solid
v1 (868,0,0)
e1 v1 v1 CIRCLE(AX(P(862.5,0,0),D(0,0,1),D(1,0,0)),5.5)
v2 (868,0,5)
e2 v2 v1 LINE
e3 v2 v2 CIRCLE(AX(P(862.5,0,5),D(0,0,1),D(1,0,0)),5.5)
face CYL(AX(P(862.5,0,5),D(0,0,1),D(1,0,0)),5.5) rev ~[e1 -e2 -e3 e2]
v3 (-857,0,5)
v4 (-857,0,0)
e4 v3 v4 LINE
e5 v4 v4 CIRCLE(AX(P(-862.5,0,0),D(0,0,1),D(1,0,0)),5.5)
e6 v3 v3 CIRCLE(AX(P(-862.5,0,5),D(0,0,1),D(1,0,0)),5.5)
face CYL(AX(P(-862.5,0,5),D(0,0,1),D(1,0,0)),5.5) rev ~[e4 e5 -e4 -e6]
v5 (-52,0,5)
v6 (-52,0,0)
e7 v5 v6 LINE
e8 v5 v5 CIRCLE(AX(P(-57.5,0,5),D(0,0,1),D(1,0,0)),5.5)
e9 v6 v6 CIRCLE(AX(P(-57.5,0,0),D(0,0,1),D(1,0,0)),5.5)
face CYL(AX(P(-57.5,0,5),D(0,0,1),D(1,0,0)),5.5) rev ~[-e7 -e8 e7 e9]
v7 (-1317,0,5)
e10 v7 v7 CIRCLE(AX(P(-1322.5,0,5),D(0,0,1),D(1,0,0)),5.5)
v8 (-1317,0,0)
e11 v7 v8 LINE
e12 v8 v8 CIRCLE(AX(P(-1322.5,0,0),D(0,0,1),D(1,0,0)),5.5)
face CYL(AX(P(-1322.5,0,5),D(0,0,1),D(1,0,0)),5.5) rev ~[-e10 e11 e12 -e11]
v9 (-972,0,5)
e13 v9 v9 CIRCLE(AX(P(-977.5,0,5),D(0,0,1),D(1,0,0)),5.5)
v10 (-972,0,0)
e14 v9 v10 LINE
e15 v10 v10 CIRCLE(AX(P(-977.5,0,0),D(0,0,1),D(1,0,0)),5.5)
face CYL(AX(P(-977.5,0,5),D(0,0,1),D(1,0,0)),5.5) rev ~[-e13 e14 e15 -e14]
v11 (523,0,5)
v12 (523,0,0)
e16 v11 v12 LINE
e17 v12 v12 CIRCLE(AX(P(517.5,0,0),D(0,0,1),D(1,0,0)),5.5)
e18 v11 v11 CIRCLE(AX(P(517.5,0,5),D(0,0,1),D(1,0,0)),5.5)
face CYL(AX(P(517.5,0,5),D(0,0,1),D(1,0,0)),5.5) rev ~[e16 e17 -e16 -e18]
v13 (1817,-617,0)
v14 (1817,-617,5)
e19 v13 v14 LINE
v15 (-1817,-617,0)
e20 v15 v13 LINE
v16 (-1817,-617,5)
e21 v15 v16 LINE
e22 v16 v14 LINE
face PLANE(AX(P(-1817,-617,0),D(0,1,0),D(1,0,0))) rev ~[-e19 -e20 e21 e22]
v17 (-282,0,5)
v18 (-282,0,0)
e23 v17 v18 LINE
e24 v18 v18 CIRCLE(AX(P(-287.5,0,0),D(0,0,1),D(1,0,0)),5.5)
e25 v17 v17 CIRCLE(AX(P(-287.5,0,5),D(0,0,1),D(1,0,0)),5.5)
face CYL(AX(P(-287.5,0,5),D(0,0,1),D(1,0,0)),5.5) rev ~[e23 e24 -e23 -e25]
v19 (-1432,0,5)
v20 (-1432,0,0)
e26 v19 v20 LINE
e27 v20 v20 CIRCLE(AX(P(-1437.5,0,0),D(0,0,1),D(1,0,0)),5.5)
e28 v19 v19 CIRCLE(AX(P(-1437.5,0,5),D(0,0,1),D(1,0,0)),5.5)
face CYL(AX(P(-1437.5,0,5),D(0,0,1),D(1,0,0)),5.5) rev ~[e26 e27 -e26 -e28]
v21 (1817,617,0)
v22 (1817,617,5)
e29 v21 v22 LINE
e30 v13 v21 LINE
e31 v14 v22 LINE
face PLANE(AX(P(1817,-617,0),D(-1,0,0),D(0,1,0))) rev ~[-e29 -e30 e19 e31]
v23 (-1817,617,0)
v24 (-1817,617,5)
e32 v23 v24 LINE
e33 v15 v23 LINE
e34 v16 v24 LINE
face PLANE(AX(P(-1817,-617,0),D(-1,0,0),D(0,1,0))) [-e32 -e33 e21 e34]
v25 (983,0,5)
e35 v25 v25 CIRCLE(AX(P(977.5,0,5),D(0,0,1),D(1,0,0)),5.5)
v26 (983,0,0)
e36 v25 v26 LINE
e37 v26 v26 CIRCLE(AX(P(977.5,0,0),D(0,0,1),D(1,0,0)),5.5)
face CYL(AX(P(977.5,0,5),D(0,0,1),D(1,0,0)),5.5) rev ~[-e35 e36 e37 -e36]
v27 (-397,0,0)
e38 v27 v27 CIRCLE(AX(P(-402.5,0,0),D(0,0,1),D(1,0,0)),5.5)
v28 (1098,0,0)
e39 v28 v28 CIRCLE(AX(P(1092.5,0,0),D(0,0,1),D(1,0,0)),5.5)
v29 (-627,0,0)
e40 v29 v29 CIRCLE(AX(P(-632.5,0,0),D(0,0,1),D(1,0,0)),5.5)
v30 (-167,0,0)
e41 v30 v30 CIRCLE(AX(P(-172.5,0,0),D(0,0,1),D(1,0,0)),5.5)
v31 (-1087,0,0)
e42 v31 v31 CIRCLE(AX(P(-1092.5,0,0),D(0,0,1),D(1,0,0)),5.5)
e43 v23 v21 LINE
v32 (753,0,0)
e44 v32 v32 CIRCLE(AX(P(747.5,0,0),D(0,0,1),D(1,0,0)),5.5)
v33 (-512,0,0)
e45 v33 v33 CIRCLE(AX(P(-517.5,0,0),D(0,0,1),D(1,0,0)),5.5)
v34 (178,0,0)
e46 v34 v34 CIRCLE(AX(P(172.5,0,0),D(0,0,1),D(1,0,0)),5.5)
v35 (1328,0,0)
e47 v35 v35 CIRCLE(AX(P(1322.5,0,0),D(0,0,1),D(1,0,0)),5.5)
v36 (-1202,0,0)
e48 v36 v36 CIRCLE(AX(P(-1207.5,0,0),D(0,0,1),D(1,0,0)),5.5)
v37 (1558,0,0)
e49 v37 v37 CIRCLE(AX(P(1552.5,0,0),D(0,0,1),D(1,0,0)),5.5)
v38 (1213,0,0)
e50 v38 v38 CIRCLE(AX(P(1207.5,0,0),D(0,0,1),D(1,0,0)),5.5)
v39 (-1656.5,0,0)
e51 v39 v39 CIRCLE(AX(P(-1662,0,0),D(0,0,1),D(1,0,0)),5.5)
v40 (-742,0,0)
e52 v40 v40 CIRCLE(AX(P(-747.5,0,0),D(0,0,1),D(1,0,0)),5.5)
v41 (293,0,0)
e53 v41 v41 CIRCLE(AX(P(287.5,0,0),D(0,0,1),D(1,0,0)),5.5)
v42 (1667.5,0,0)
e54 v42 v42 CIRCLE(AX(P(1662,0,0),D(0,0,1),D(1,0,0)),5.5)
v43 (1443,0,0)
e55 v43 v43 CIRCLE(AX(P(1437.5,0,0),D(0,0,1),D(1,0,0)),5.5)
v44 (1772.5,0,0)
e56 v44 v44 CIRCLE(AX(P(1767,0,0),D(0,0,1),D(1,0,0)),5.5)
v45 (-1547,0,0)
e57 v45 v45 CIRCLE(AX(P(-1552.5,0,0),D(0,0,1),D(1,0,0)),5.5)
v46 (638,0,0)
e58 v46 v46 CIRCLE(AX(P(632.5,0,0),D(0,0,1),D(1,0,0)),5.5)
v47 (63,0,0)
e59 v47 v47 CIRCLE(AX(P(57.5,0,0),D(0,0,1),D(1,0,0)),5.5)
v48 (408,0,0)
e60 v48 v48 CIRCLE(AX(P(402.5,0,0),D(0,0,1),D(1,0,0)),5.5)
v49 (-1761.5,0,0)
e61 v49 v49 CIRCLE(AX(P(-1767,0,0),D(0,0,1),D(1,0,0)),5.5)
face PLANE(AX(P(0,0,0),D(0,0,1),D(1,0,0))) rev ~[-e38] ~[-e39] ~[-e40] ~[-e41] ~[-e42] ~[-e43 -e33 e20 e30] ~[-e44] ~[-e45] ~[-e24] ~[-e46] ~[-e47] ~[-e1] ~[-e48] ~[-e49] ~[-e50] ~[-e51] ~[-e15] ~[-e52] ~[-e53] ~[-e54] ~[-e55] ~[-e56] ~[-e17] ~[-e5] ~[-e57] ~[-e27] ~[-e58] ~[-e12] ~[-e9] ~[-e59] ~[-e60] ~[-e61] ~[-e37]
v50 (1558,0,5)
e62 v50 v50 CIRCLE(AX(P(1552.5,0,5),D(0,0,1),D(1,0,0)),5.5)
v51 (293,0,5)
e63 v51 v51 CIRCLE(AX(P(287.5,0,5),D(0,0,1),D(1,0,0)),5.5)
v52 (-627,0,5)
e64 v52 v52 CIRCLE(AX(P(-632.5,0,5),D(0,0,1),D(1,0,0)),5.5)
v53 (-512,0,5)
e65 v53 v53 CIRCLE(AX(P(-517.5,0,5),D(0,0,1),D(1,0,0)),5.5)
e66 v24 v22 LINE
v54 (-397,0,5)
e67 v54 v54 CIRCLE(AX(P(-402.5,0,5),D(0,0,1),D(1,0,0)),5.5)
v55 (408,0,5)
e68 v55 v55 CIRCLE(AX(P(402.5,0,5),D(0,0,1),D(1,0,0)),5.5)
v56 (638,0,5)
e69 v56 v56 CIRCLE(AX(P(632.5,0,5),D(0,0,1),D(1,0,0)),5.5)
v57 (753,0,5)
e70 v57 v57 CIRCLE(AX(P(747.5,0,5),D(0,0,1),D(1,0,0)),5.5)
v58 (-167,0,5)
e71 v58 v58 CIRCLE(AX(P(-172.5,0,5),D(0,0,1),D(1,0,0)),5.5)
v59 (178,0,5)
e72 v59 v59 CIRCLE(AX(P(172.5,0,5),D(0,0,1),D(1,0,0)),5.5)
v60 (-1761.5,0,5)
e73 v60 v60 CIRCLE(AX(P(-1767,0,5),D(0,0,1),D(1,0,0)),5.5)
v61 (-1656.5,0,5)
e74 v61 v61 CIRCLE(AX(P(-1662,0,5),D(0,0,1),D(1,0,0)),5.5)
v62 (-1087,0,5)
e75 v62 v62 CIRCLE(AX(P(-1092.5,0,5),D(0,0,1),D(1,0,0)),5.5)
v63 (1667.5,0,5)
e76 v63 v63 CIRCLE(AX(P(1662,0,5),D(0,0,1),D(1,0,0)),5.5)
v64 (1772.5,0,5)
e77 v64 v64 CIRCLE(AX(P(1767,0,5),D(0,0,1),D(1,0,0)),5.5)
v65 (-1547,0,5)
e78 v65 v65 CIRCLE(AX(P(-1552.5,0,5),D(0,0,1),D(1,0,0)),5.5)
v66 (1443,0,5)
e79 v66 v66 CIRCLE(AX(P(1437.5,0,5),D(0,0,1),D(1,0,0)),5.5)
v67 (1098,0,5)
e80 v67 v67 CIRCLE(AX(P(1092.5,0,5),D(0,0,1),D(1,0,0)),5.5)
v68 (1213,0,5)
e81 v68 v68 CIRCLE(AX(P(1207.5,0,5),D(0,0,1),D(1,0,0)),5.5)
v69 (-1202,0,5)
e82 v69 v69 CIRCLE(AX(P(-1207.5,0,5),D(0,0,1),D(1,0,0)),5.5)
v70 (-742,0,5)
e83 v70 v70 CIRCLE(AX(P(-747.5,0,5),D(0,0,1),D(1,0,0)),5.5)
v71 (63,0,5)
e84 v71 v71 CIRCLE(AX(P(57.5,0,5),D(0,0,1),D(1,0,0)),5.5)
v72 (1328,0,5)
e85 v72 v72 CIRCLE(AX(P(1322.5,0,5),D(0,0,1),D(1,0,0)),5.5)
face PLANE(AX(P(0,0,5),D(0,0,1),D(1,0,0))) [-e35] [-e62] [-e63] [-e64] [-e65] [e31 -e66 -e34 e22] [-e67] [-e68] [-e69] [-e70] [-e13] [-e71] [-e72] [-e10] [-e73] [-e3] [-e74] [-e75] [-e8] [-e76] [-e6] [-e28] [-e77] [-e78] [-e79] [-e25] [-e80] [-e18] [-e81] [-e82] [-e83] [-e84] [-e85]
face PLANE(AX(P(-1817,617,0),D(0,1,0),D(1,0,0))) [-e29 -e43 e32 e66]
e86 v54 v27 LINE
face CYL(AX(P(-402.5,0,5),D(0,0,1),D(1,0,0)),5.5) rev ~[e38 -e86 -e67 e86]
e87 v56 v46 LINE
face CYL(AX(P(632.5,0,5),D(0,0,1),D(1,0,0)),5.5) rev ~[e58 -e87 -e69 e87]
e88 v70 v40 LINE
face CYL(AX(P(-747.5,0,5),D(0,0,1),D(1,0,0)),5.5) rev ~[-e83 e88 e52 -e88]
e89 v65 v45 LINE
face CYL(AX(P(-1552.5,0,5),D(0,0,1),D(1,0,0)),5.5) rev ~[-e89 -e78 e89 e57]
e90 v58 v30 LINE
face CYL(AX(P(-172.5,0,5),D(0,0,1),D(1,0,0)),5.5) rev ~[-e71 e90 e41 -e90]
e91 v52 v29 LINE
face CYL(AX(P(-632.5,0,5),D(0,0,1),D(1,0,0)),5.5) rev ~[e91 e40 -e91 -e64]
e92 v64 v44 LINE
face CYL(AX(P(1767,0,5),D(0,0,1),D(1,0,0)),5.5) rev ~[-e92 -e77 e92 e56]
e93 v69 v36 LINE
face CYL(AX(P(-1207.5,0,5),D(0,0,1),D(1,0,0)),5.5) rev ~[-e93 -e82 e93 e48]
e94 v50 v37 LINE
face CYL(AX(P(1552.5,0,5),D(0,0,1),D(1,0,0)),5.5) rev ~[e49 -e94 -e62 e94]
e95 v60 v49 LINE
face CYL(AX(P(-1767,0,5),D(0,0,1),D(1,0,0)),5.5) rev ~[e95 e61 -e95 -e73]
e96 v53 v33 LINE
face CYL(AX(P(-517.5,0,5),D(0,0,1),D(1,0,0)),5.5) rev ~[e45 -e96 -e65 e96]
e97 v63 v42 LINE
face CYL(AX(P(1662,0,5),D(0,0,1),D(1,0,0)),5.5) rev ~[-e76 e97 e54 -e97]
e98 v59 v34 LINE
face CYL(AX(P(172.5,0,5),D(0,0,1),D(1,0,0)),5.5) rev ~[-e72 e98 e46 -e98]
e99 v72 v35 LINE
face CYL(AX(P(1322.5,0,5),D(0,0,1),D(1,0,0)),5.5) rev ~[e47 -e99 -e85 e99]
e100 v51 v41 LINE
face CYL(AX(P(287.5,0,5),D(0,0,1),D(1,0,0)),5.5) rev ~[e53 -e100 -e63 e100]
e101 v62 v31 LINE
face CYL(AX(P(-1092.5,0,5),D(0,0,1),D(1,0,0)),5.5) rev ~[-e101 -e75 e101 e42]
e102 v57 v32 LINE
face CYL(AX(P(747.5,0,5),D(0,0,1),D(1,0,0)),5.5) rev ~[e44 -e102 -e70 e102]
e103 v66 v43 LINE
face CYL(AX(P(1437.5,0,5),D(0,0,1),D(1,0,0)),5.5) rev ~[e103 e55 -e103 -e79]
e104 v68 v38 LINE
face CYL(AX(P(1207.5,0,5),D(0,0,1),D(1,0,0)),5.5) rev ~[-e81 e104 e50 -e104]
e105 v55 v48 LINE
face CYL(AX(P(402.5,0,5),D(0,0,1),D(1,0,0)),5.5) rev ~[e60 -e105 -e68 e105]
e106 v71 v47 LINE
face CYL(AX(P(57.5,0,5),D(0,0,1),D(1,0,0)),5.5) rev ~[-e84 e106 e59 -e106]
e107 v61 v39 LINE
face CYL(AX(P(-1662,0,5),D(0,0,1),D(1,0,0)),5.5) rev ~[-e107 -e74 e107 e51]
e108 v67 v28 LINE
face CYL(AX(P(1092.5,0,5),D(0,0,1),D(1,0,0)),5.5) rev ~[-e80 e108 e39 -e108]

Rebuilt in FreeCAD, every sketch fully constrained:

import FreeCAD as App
import Part
import Sketcher

V = App.Vector
Q = App.Units.Quantity


def add_polygon(sketch, points):
    """Adds a closed chain of lines whose ends are joined by coincident constraints."""
    first, n = sketch.GeometryCount, len(points)
    for a, b in zip(points, points[1:] + points[:1]):
        sketch.addGeometry(Part.LineSegment(App.Vector(*a, 0), App.Vector(*b, 0)), False)
    for i in range(n):
        sketch.addConstraint(Sketcher.Constraint("Coincident", first + i, 2, first + (i + 1) % n, 1))

doc = App.newDocument("Part")
body = doc.addObject("PartDesign::Body", "Body")

sketch1 = body.newObject("Sketcher::SketchObject", "Sketch")
sketch1.AttachmentSupport = (doc.getObject("XY_Plane"), [""])
sketch1.MapMode = "FlatFace"
add_polygon(sketch1, [(-1817, 617), (-1817, -617), (1817, -617), (1817, 617)])
sketch1.addConstraint(Sketcher.Constraint("Vertical", 0))
sketch1.addConstraint(Sketcher.Constraint("Horizontal", 1))
sketch1.addConstraint(Sketcher.Constraint("Vertical", 2))
sketch1.addConstraint(Sketcher.Constraint("Horizontal", 3))
sketch1.addConstraint(Sketcher.Constraint("Symmetric", 0, 2, 2, 2, -1, 1))
sketch1.addConstraint(Sketcher.Constraint("DistanceX", 1, 1, 1, 2, Q("3634 mm")))
sketch1.addConstraint(Sketcher.Constraint("DistanceY", 0, 2, 0, 1, Q("1234 mm")))
pad1 = body.newObject("PartDesign::Pad", "Pad")
pad1.Profile = sketch1
pad1.Length = 5

sketch2 = body.newObject("Sketcher::SketchObject", "Sketch001")
sketch2.AttachmentSupport = (doc.getObject("XY_Plane"), [""])
sketch2.MapMode = "FlatFace"
sketch2.AttachmentOffset = App.Placement(V(0, 0, 5), App.Rotation())
sketch2.addGeometry(Part.Circle(V(58, 0, 0), V(0, 0, 1), 6), False)
sketch2.addConstraint(Sketcher.Constraint("PointOnObject", 0, 3, -1))
sketch2.addConstraint(Sketcher.Constraint("Diameter", 0, Q("11 mm")))
sketch2.addConstraint(Sketcher.Constraint("DistanceX", -1, 1, 0, 3, Q("57.5 mm")))
pocket1 = body.newObject("PartDesign::Pocket", "Pocket")
pocket1.Profile = sketch2
pocket1.Type = "ThroughAll"

sketch3 = body.newObject("Sketcher::SketchObject", "Sketch002")
sketch3.AttachmentSupport = (doc.getObject("XY_Plane"), [""])
sketch3.MapMode = "FlatFace"
sketch3.AttachmentOffset = App.Placement(V(0, 0, 5), App.Rotation())
sketch3.addGeometry(Part.Circle(V(58, 0, 0), V(0, 0, 1), 6), False)
sketch3.addGeometry(Part.Circle(V(172, 0, 0), V(0, 0, 1), 6), False)
sketch3.addGeometry(Part.Circle(V(288, 0, 0), V(0, 0, 1), 6), False)
sketch3.addGeometry(Part.Circle(V(402, 0, 0), V(0, 0, 1), 6), False)
sketch3.addGeometry(Part.Circle(V(518, 0, 0), V(0, 0, 1), 6), False)
sketch3.addGeometry(Part.Circle(V(632, 0, 0), V(0, 0, 1), 6), False)
sketch3.addGeometry(Part.Circle(V(748, 0, 0), V(0, 0, 1), 6), False)
sketch3.addGeometry(Part.Circle(V(862, 0, 0), V(0, 0, 1), 6), False)
sketch3.addGeometry(Part.Circle(V(978, 0, 0), V(0, 0, 1), 6), False)
sketch3.addGeometry(Part.Circle(V(1092, 0, 0), V(0, 0, 1), 6), False)
sketch3.addGeometry(Part.Circle(V(1208, 0, 0), V(0, 0, 1), 6), False)
sketch3.addGeometry(Part.Circle(V(1322, 0, 0), V(0, 0, 1), 6), False)
sketch3.addGeometry(Part.Circle(V(1438, 0, 0), V(0, 0, 1), 6), False)
sketch3.addGeometry(Part.Circle(V(1552, 0, 0), V(0, 0, 1), 6), False)
sketch3.addGeometry(Part.Circle(V(-58, 0, 0), V(0, 0, 1), 6), False)
sketch3.addGeometry(Part.Circle(V(-172, 0, 0), V(0, 0, 1), 6), False)
sketch3.addGeometry(Part.Circle(V(-288, 0, 0), V(0, 0, 1), 6), False)
sketch3.addGeometry(Part.Circle(V(-402, 0, 0), V(0, 0, 1), 6), False)
sketch3.addGeometry(Part.Circle(V(-518, 0, 0), V(0, 0, 1), 6), False)
sketch3.addGeometry(Part.Circle(V(-632, 0, 0), V(0, 0, 1), 6), False)
sketch3.addGeometry(Part.Circle(V(-748, 0, 0), V(0, 0, 1), 6), False)
sketch3.addGeometry(Part.Circle(V(-862, 0, 0), V(0, 0, 1), 6), False)
sketch3.addGeometry(Part.Circle(V(-978, 0, 0), V(0, 0, 1), 6), False)
sketch3.addGeometry(Part.Circle(V(-1092, 0, 0), V(0, 0, 1), 6), False)
sketch3.addGeometry(Part.Circle(V(-1208, 0, 0), V(0, 0, 1), 6), False)
sketch3.addGeometry(Part.Circle(V(-1322, 0, 0), V(0, 0, 1), 6), False)
sketch3.addGeometry(Part.Circle(V(-1438, 0, 0), V(0, 0, 1), 6), False)
sketch3.addGeometry(Part.Circle(V(-1552, 0, 0), V(0, 0, 1), 6), False)
sketch3.addGeometry(Part.Circle(V(1767, 0, 0), V(0, 0, 1), 6), False)
sketch3.addGeometry(Part.Circle(V(1662, 0, 0), V(0, 0, 1), 6), False)
sketch3.addGeometry(Part.Circle(V(-1767, 0, 0), V(0, 0, 1), 6), False)
sketch3.addGeometry(Part.Circle(V(-1662, 0, 0), V(0, 0, 1), 6), False)
sketch3.addConstraint(Sketcher.Constraint("Equal", 0, 1))
sketch3.addConstraint(Sketcher.Constraint("Equal", 1, 2))
sketch3.addConstraint(Sketcher.Constraint("Equal", 2, 3))
sketch3.addConstraint(Sketcher.Constraint("Equal", 3, 4))
sketch3.addConstraint(Sketcher.Constraint("Equal", 4, 5))
sketch3.addConstraint(Sketcher.Constraint("Equal", 5, 6))
sketch3.addConstraint(Sketcher.Constraint("Equal", 6, 7))
sketch3.addConstraint(Sketcher.Constraint("Equal", 7, 8))
sketch3.addConstraint(Sketcher.Constraint("Equal", 8, 9))
sketch3.addConstraint(Sketcher.Constraint("Equal", 9, 10))
sketch3.addConstraint(Sketcher.Constraint("Equal", 10, 11))
sketch3.addConstraint(Sketcher.Constraint("Equal", 11, 12))
sketch3.addConstraint(Sketcher.Constraint("Equal", 12, 13))
sketch3.addConstraint(Sketcher.Constraint("Equal", 13, 14))
sketch3.addConstraint(Sketcher.Constraint("Equal", 14, 15))
sketch3.addConstraint(Sketcher.Constraint("Equal", 15, 16))
sketch3.addConstraint(Sketcher.Constraint("Equal", 16, 17))
sketch3.addConstraint(Sketcher.Constraint("Equal", 17, 18))
sketch3.addConstraint(Sketcher.Constraint("Equal", 18, 19))
sketch3.addConstraint(Sketcher.Constraint("Equal", 19, 20))
sketch3.addConstraint(Sketcher.Constraint("Equal", 20, 21))
sketch3.addConstraint(Sketcher.Constraint("Equal", 21, 22))
sketch3.addConstraint(Sketcher.Constraint("Equal", 22, 23))
sketch3.addConstraint(Sketcher.Constraint("Equal", 23, 24))
sketch3.addConstraint(Sketcher.Constraint("Equal", 24, 25))
sketch3.addConstraint(Sketcher.Constraint("Equal", 25, 26))
sketch3.addConstraint(Sketcher.Constraint("Equal", 26, 27))
sketch3.addConstraint(Sketcher.Constraint("Equal", 27, 28))
sketch3.addConstraint(Sketcher.Constraint("Equal", 28, 29))
sketch3.addConstraint(Sketcher.Constraint("Equal", 29, 30))
sketch3.addConstraint(Sketcher.Constraint("Equal", 30, 31))
sketch3.addConstraint(Sketcher.Constraint("Symmetric", 0, 3, 14, 3, -1, 1))
sketch3.addConstraint(Sketcher.Constraint("Symmetric", 1, 3, 15, 3, -1, 1))
sketch3.addConstraint(Sketcher.Constraint("Symmetric", 2, 3, 16, 3, -1, 1))
sketch3.addConstraint(Sketcher.Constraint("Symmetric", 3, 3, 17, 3, -1, 1))
sketch3.addConstraint(Sketcher.Constraint("Symmetric", 4, 3, 18, 3, -1, 1))
sketch3.addConstraint(Sketcher.Constraint("Symmetric", 5, 3, 19, 3, -1, 1))
sketch3.addConstraint(Sketcher.Constraint("Symmetric", 6, 3, 20, 3, -1, 1))
sketch3.addConstraint(Sketcher.Constraint("Symmetric", 7, 3, 21, 3, -1, 1))
sketch3.addConstraint(Sketcher.Constraint("Symmetric", 8, 3, 22, 3, -1, 1))
sketch3.addConstraint(Sketcher.Constraint("Symmetric", 9, 3, 23, 3, -1, 1))
sketch3.addConstraint(Sketcher.Constraint("Symmetric", 10, 3, 24, 3, -1, 1))
sketch3.addConstraint(Sketcher.Constraint("Symmetric", 11, 3, 25, 3, -1, 1))
sketch3.addConstraint(Sketcher.Constraint("Symmetric", 12, 3, 26, 3, -1, 1))
sketch3.addConstraint(Sketcher.Constraint("Symmetric", 13, 3, 27, 3, -1, 1))
sketch3.addConstraint(Sketcher.Constraint("Symmetric", 28, 3, 30, 3, -1, 1))
sketch3.addConstraint(Sketcher.Constraint("Symmetric", 29, 3, 31, 3, -1, 1))
sketch3.addConstraint(Sketcher.Constraint("PointOnObject", 0, 3, -1))
sketch3.addConstraint(Sketcher.Constraint("PointOnObject", 1, 3, -1))
sketch3.addConstraint(Sketcher.Constraint("PointOnObject", 2, 3, -1))
sketch3.addConstraint(Sketcher.Constraint("PointOnObject", 3, 3, -1))
sketch3.addConstraint(Sketcher.Constraint("PointOnObject", 4, 3, -1))
sketch3.addConstraint(Sketcher.Constraint("PointOnObject", 5, 3, -1))
sketch3.addConstraint(Sketcher.Constraint("PointOnObject", 6, 3, -1))
sketch3.addConstraint(Sketcher.Constraint("PointOnObject", 7, 3, -1))
sketch3.addConstraint(Sketcher.Constraint("PointOnObject", 8, 3, -1))
sketch3.addConstraint(Sketcher.Constraint("PointOnObject", 9, 3, -1))
sketch3.addConstraint(Sketcher.Constraint("PointOnObject", 10, 3, -1))
sketch3.addConstraint(Sketcher.Constraint("PointOnObject", 11, 3, -1))
sketch3.addConstraint(Sketcher.Constraint("PointOnObject", 12, 3, -1))
sketch3.addConstraint(Sketcher.Constraint("PointOnObject", 13, 3, -1))
sketch3.addConstraint(Sketcher.Constraint("PointOnObject", 28, 3, -1))
sketch3.addConstraint(Sketcher.Constraint("PointOnObject", 29, 3, -1))
sketch3.addConstraint(Sketcher.Constraint("Diameter", 0, Q("11 mm")))
sketch3.addConstraint(Sketcher.Constraint("DistanceX", -1, 1, 28, 3, Q("1767 mm")))
sketch3.addConstraint(Sketcher.Constraint("DistanceX", -1, 1, 29, 3, Q("1662 mm")))
sketch3.addConstraint(Sketcher.Constraint("DistanceX", 0, 3, 1, 3, Q("115 mm")))
sketch3.addConstraint(Sketcher.Constraint("DistanceX", 1, 3, 2, 3, Q("115 mm")))
sketch3.addConstraint(Sketcher.Constraint("DistanceX", 2, 3, 3, 3, Q("115 mm")))
sketch3.addConstraint(Sketcher.Constraint("DistanceX", 3, 3, 4, 3, Q("115 mm")))
sketch3.addConstraint(Sketcher.Constraint("DistanceX", 4, 3, 5, 3, Q("115 mm")))
sketch3.addConstraint(Sketcher.Constraint("DistanceX", 5, 3, 6, 3, Q("115 mm")))
sketch3.addConstraint(Sketcher.Constraint("DistanceX", 6, 3, 7, 3, Q("115 mm")))
sketch3.addConstraint(Sketcher.Constraint("DistanceX", 7, 3, 8, 3, Q("115 mm")))
sketch3.addConstraint(Sketcher.Constraint("DistanceX", 8, 3, 9, 3, Q("115 mm")))
sketch3.addConstraint(Sketcher.Constraint("DistanceX", 9, 3, 10, 3, Q("115 mm")))
sketch3.addConstraint(Sketcher.Constraint("DistanceX", 10, 3, 11, 3, Q("115 mm")))
sketch3.addConstraint(Sketcher.Constraint("DistanceX", 11, 3, 12, 3, Q("115 mm")))
sketch3.addConstraint(Sketcher.Constraint("DistanceX", 12, 3, 13, 3, Q("115 mm")))
sketch3.addConstraint(Sketcher.Constraint("DistanceX", 14, 3, 0, 3, Q("115 mm")))
pocket2 = body.newObject("PartDesign::Pocket", "Pocket001")
pocket2.Profile = sketch3
pocket2.Type = "ThroughAll"

doc.recompute()
